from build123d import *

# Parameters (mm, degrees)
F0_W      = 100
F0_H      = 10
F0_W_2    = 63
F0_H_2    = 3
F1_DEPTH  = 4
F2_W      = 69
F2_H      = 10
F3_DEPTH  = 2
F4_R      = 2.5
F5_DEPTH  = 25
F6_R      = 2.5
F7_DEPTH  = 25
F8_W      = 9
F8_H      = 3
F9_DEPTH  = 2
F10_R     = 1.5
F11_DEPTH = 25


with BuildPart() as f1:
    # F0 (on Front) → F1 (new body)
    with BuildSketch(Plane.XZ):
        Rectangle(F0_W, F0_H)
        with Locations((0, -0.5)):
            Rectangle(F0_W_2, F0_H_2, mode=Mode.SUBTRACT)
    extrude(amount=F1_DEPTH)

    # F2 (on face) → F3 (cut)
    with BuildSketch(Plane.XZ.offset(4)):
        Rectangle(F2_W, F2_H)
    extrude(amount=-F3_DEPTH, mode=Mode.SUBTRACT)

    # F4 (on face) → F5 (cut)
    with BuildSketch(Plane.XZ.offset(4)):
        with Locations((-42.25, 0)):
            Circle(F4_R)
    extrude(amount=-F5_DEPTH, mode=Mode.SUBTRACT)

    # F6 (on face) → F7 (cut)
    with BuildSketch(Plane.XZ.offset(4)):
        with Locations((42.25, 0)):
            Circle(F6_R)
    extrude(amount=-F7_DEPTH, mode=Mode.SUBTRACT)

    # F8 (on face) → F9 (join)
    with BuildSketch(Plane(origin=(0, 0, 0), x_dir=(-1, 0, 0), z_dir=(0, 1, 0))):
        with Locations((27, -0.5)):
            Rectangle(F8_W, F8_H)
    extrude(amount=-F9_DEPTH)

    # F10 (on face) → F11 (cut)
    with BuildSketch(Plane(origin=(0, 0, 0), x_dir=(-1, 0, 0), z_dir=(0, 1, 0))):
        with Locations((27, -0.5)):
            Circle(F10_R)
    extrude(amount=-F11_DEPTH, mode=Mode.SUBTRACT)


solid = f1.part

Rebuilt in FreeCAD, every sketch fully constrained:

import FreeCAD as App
import Part
import Sketcher

V = App.Vector
Q = App.Units.Quantity


def add_polygon(sketch, points):
    """Adds a closed chain of lines whose ends are joined by coincident constraints."""
    first, n = sketch.GeometryCount, len(points)
    for a, b in zip(points, points[1:] + points[:1]):
        sketch.addGeometry(Part.LineSegment(App.Vector(*a, 0), App.Vector(*b, 0)), False)
    for i in range(n):
        sketch.addConstraint(Sketcher.Constraint("Coincident", first + i, 2, first + (i + 1) % n, 1))

doc = App.newDocument("Part")
params = doc.addObject("Spreadsheet::Sheet", "Params")
for row, (alias, value) in enumerate([
    ("sketch1_width", "100 mm"),
    ("sketch1_width2", "63 mm"),
    ("sketch1_height", "10 mm"),
    ("sketch1_height2", "3 mm"),
    ("pad1_length", "4 mm"),
    ("sketch2_width", "69 mm"),
    ("sketch2_height", "10 mm"),
    ("pocket1_length", "2 mm"),
    ("sketch3_diameter", "5 mm"),
    ("pocket2_length", "25 mm"),
    ("sketch4_diameter", "5 mm"),
    ("pocket3_length", "25 mm"),
    ("sketch5_width", "9 mm"),
    ("sketch5_height", "3 mm"),
    ("pad2_length", "2 mm"),
    ("sketch6_diameter", "3 mm"),
    ("pocket4_length", "25 mm"),
], start=1):
    params.set(f"A{row}", alias)
    params.set(f"B{row}", "=" + value)
    params.setAlias(f"B{row}", alias)

body = doc.addObject("PartDesign::Body", "Body")

# Sketch on XZ plane
sketch1 = doc.addObject("Sketcher::SketchObject", "Sketch")
body.addObject(sketch1)
sketch1.AttachmentSupport = (doc.XZ_Plane, [""])
sketch1.MapMode = "FlatFace"
add_polygon(sketch1, [(-50, 5), (-50, -5), (50, -5), (50, 5)])  # lines 0-3
add_polygon(sketch1, [(31.5, -2), (-31.5, -2), (-31.5, 1), (31.5, 1)])  # lines 4-7
sketch1.addConstraint(Sketcher.Constraint("Vertical", 0))
sketch1.addConstraint(Sketcher.Constraint("Horizontal", 1))
sketch1.addConstraint(Sketcher.Constraint("Vertical", 2))
sketch1.addConstraint(Sketcher.Constraint("Horizontal", 3))
sketch1.addConstraint(Sketcher.Constraint("Horizontal", 4))
sketch1.addConstraint(Sketcher.Constraint("Vertical", 5))
sketch1.addConstraint(Sketcher.Constraint("Horizontal", 6))
sketch1.addConstraint(Sketcher.Constraint("Vertical", 7))
sketch1.addConstraint(Sketcher.Constraint("Symmetric", 0, 2, 2, 2, -1, 1))
sketch1.addConstraint(Sketcher.Constraint("DistanceX", 1, 1, 1, 2, Q("100 mm")))
sketch1.addConstraint(Sketcher.Constraint("DistanceX", 4, 2, 4, 1, Q("63 mm")))
sketch1.addConstraint(Sketcher.Constraint("DistanceY", 0, 2, 0, 1, Q("10 mm")))
sketch1.addConstraint(Sketcher.Constraint("DistanceY", 5, 1, 5, 2, Q("3 mm")))
sketch1.addConstraint(Sketcher.Constraint("DistanceY", 4, 2, -1, 1, Q("2 mm")))
sketch1.addConstraint(Sketcher.Constraint("DistanceX", 4, 2, -1, 1, Q("31.5 mm")))
sketch1.setExpression("Constraints[17]", "Params.sketch1_width")
sketch1.setExpression("Constraints[18]", "Params.sketch1_width2")
sketch1.setExpression("Constraints[19]", "Params.sketch1_height")
sketch1.setExpression("Constraints[20]", "Params.sketch1_height2")
pad1 = doc.addObject("PartDesign::Pad", "Pad")
body.addObject(pad1)
pad1.Profile = sketch1
pad1.setExpression("Length", "Params.pad1_length")

# Sketch on XZ plane
sketch2 = doc.addObject("Sketcher::SketchObject", "Sketch001")
body.addObject(sketch2)
sketch2.AttachmentSupport = (doc.XZ_Plane, [""])
sketch2.MapMode = "FlatFace"
sketch2.AttachmentOffset = App.Placement(V(0, 0, 4), App.Rotation())
add_polygon(sketch2, [(-34.5, 5), (-34.5, -5), (34.5, -5), (34.5, 5)])  # lines 0-3
sketch2.addConstraint(Sketcher.Constraint("Vertical", 0))
sketch2.addConstraint(Sketcher.Constraint("Horizontal", 1))
sketch2.addConstraint(Sketcher.Constraint("Vertical", 2))
sketch2.addConstraint(Sketcher.Constraint("Horizontal", 3))
sketch2.addConstraint(Sketcher.Constraint("Symmetric", 0, 2, 2, 2, -1, 1))
sketch2.addConstraint(Sketcher.Constraint("DistanceX", 1, 1, 1, 2, Q("69 mm")))
sketch2.addConstraint(Sketcher.Constraint("DistanceY", 0, 2, 0, 1, Q("10 mm")))
sketch2.setExpression("Constraints[9]", "Params.sketch2_width")
sketch2.setExpression("Constraints[10]", "Params.sketch2_height")
pocket1 = doc.addObject("PartDesign::Pocket", "Pocket")
body.addObject(pocket1)
pocket1.Profile = sketch2
pocket1.setExpression("Length", "Params.pocket1_length")

# Sketch on XZ plane
sketch3 = doc.addObject("Sketcher::SketchObject", "Sketch002")
body.addObject(sketch3)
sketch3.AttachmentSupport = (doc.XZ_Plane, [""])
sketch3.MapMode = "FlatFace"
sketch3.AttachmentOffset = App.Placement(V(0, 0, 4), App.Rotation())
sketch3.addGeometry(Part.Circle(V(-42.25, 0, 0), V(0, 0, 1), 2.5), False)
sketch3.addConstraint(Sketcher.Constraint("PointOnObject", 0, 3, -1))
sketch3.addConstraint(Sketcher.Constraint("Diameter", 0, Q("5 mm")))
sketch3.addConstraint(Sketcher.Constraint("DistanceX", 0, 3, -1, 1, Q("42.25 mm")))
sketch3.setExpression("Constraints[1]", "Params.sketch3_diameter")
pocket2 = doc.addObject("PartDesign::Pocket", "Pocket001")
body.addObject(pocket2)
pocket2.Profile = sketch3
pocket2.setExpression("Length", "Params.pocket2_length")

# Sketch on XZ plane
sketch4 = doc.addObject("Sketcher::SketchObject", "Sketch003")
body.addObject(sketch4)
sketch4.AttachmentSupport = (doc.XZ_Plane, [""])
sketch4.MapMode = "FlatFace"
sketch4.AttachmentOffset = App.Placement(V(0, 0, 4), App.Rotation())
sketch4.addGeometry(Part.Circle(V(42.25, 0, 0), V(0, 0, 1), 2.5), False)
sketch4.addConstraint(Sketcher.Constraint("PointOnObject", 0, 3, -1))
sketch4.addConstraint(Sketcher.Constraint("Diameter", 0, Q("5 mm")))
sketch4.addConstraint(Sketcher.Constraint("DistanceX", -1, 1, 0, 3, Q("42.25 mm")))
sketch4.setExpression("Constraints[1]", "Params.sketch4_diameter")
pocket3 = doc.addObject("PartDesign::Pocket", "Pocket002")
body.addObject(pocket3)
pocket3.Profile = sketch4
pocket3.setExpression("Length", "Params.pocket3_length")

# Sketch on XZ plane
sketch5 = doc.addObject("Sketcher::SketchObject", "Sketch004")
body.addObject(sketch5)
sketch5.AttachmentSupport = (doc.XZ_Plane, [""])
sketch5.MapMode = "FlatFace"
add_polygon(sketch5, [(-22.5, 1), (-22.5, -2), (-31.5, -2), (-31.5, 1)])  # lines 0-3
sketch5.addConstraint(Sketcher.Constraint("Vertical", 0))
sketch5.addConstraint(Sketcher.Constraint("Horizontal", 1))
sketch5.addConstraint(Sketcher.Constraint("Vertical", 2))
sketch5.addConstraint(Sketcher.Constraint("Horizontal", 3))
sketch5.addConstraint(Sketcher.Constraint("DistanceX", 1, 2, 1, 1, Q("9 mm")))
sketch5.addConstraint(Sketcher.Constraint("DistanceY", 0, 2, 0, 1, Q("3 mm")))
sketch5.addConstraint(Sketcher.Constraint("DistanceY", 0, 2, -1, 1, Q("2 mm")))
sketch5.addConstraint(Sketcher.Constraint("DistanceX", 0, 2, -1, 1, Q("22.5 mm")))
sketch5.setExpression("Constraints[8]", "Params.sketch5_width")
sketch5.setExpression("Constraints[9]", "Params.sketch5_height")
pad2 = doc.addObject("PartDesign::Pad", "Pad001")
body.addObject(pad2)
pad2.Profile = sketch5
pad2.setExpression("Length", "Params.pad2_length")

# Sketch on XZ plane
sketch6 = doc.addObject("Sketcher::SketchObject", "Sketch005")
body.addObject(sketch6)
sketch6.AttachmentSupport = (doc.XZ_Plane, [""])
sketch6.MapMode = "FlatFace"
sketch6.addGeometry(Part.Circle(V(-27, -0.5, 0), V(0, 0, 1), 1.5), False)
sketch6.addConstraint(Sketcher.Constraint("Diameter", 0, Q("3 mm")))
sketch6.addConstraint(Sketcher.Constraint("DistanceX", 0, 3, -1, 1, Q("27 mm")))
sketch6.addConstraint(Sketcher.Constraint("DistanceY", 0, 3, -1, 1, Q("0.5 mm")))
sketch6.setExpression("Constraints[0]", "Params.sketch6_diameter")
pocket4 = doc.addObject("PartDesign::Pocket", "Pocket003")
body.addObject(pocket4)
pocket4.Profile = sketch6
pocket4.setExpression("Length", "Params.pocket4_length")
pocket4.Reversed = True

doc.recompute()
